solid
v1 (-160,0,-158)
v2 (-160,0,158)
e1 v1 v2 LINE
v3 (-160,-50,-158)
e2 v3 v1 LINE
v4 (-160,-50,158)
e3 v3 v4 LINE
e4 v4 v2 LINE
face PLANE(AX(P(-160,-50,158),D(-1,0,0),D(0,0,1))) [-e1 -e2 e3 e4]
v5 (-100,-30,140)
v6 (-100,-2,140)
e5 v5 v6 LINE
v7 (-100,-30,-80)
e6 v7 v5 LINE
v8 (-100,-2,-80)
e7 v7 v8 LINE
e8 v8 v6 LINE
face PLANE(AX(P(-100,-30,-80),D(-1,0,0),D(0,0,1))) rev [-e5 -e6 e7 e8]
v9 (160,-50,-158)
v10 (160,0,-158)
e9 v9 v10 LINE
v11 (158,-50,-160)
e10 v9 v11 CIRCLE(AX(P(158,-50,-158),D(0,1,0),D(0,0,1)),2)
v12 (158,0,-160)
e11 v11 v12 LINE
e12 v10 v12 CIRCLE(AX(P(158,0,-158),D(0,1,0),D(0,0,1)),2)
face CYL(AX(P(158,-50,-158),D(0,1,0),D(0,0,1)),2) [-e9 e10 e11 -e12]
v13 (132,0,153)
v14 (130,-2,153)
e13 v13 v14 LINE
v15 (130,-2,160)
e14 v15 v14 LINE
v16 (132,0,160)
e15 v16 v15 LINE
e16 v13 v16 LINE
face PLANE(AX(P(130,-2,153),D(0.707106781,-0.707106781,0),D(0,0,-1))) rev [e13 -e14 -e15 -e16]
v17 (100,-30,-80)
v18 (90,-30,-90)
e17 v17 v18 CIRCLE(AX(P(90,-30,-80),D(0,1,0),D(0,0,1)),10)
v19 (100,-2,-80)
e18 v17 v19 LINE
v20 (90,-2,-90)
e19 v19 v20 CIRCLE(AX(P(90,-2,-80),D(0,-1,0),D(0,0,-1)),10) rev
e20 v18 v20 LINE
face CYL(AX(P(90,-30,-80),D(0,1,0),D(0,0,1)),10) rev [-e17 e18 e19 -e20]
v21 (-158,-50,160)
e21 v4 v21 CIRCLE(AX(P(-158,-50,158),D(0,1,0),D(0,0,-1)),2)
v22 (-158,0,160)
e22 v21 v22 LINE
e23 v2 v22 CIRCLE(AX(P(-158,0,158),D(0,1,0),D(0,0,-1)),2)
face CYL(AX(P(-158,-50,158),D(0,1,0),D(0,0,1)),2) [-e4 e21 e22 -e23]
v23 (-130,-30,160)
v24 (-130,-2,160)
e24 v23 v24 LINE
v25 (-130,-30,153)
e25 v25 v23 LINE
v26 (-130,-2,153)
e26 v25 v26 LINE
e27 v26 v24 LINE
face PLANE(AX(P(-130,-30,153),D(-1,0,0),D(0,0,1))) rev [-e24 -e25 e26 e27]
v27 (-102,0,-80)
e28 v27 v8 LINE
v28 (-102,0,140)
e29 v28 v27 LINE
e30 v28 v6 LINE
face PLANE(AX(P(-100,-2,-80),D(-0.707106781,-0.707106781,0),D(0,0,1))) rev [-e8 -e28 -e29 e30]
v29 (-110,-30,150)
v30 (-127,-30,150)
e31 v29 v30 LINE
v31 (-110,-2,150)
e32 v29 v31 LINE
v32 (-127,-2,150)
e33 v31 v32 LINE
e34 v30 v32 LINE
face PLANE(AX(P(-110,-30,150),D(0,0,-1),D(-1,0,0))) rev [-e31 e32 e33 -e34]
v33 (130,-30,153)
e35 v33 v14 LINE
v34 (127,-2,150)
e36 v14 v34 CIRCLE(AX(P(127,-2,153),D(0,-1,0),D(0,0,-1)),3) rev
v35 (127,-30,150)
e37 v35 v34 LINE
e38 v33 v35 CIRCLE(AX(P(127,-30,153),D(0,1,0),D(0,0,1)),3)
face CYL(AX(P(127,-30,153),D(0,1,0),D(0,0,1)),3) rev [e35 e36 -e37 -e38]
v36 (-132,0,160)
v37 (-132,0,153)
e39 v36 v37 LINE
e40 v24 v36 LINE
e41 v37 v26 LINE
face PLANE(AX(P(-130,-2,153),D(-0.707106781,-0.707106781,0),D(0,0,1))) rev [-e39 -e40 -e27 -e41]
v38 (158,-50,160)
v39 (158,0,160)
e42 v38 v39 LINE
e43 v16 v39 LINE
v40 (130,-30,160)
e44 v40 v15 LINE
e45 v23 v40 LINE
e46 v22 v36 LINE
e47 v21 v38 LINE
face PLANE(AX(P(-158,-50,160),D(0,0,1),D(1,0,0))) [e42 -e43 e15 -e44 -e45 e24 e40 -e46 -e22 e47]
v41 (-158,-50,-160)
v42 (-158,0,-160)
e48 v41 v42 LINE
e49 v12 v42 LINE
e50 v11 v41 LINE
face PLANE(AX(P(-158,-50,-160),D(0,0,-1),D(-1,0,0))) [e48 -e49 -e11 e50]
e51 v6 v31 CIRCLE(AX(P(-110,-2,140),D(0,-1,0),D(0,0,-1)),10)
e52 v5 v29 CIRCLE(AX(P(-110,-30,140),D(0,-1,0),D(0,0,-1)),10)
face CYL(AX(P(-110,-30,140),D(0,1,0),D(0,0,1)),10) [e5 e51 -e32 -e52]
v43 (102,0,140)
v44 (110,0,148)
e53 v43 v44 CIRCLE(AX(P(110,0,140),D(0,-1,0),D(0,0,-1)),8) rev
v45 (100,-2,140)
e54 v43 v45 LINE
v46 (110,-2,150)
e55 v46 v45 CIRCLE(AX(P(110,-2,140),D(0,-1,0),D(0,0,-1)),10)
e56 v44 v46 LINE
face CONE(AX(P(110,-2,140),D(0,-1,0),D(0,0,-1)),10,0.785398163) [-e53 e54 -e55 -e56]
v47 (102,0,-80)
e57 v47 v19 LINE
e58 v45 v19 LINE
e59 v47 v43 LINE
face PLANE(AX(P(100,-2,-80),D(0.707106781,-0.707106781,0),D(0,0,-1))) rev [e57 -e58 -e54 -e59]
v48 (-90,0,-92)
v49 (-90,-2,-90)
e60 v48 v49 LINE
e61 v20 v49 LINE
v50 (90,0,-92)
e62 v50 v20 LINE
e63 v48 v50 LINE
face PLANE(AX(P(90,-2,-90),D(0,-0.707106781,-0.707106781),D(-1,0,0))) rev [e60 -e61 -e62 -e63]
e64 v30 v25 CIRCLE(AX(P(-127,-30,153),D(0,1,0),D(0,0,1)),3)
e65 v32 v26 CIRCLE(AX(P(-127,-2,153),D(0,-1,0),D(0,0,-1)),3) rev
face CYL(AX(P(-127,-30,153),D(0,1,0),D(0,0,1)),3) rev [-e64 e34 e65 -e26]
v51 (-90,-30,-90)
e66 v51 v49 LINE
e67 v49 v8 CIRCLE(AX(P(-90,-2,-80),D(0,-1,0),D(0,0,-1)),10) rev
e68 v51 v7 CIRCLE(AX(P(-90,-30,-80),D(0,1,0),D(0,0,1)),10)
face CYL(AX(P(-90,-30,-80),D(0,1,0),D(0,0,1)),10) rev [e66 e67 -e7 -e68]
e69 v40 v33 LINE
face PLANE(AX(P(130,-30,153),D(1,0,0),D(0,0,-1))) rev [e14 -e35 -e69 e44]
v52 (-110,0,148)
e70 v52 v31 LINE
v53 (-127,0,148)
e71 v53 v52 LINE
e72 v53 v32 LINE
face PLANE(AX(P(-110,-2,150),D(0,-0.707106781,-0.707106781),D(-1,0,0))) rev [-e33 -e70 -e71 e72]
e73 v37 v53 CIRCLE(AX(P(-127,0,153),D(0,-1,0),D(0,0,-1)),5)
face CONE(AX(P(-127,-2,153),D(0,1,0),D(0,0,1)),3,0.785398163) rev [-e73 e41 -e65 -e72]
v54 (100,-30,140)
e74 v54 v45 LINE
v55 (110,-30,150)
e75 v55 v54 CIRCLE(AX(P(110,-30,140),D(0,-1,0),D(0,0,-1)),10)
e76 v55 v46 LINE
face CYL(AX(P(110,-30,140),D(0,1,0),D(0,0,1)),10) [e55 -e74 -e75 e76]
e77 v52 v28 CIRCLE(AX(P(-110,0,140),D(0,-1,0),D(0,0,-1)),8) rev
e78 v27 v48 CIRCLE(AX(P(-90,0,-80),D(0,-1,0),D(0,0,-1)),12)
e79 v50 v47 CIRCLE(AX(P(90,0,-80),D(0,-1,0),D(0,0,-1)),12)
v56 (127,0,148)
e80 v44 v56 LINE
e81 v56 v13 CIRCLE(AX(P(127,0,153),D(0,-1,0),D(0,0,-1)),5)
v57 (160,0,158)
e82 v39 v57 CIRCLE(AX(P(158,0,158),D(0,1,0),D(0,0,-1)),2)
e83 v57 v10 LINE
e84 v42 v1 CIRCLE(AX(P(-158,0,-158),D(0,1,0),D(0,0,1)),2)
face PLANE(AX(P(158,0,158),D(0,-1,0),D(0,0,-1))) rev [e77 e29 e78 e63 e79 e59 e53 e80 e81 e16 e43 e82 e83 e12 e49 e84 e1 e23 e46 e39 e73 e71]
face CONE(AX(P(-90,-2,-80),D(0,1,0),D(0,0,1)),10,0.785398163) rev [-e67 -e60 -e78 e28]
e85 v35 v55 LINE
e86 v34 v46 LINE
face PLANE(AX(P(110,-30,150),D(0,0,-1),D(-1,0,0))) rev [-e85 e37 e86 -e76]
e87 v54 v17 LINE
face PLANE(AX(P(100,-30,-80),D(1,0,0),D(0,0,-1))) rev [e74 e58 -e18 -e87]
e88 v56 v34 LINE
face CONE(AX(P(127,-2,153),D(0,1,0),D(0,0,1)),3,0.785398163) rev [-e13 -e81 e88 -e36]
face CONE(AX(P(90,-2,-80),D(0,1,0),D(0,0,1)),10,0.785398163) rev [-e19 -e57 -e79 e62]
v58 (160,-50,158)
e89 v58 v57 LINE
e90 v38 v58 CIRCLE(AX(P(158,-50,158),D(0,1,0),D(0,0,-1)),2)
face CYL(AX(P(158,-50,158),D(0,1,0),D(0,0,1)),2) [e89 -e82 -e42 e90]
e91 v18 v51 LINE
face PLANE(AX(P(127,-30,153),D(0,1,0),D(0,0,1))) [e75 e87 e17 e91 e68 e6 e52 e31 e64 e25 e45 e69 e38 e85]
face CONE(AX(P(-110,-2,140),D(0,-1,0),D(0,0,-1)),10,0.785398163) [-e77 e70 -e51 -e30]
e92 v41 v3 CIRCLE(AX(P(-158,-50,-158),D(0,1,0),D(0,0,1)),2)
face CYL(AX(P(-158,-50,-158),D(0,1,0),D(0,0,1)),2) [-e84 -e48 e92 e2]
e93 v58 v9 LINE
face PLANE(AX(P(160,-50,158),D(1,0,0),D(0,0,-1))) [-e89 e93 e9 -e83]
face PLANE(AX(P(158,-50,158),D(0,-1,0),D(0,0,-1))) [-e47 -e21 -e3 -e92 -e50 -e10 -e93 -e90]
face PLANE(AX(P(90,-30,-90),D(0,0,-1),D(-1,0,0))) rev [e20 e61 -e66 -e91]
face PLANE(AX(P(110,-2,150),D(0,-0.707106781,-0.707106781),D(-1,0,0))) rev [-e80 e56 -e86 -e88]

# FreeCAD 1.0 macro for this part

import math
import FreeCAD as App
import Part
import Sketcher


def edges_at(feature, points):
    """Names of the edges that pass closest to the given points."""
    edges = feature.Shape.Edges
    near = lambda p: min(range(len(edges)), key=lambda i: edges[i].distToShape(Part.Vertex(*p))[0])
    return sorted({f"Edge{near(p) + 1}" for p in points})

doc = App.newDocument("Part")
body = doc.addObject("PartDesign::Body", "Body")

sketch1 = body.newObject("Sketcher::SketchObject", "Sketch")
sketch1.AttachmentSupport = (doc.getObject("XZ_Plane"), [""])
sketch1.MapMode = "FlatFace"
sketch1.addGeometry(Part.LineSegment(App.Vector(-158, 160, 0), App.Vector(158, 160, 0)), False)
sketch1.addGeometry(Part.ArcOfCircle(Part.Circle(App.Vector(158, 158, 0), App.Vector(0, 0, 1), 2), math.radians(0), math.radians(90)), False)
sketch1.addGeometry(Part.LineSegment(App.Vector(160, 158, 0), App.Vector(160, -158, 0)), False)
sketch1.addGeometry(Part.ArcOfCircle(Part.Circle(App.Vector(158, -158, 0), App.Vector(0, 0, 1), 2), math.radians(-90), math.radians(0)), False)
sketch1.addGeometry(Part.LineSegment(App.Vector(158, -160, 0), App.Vector(-158, -160, 0)), False)
sketch1.addGeometry(Part.ArcOfCircle(Part.Circle(App.Vector(-158, -158, 0), App.Vector(0, 0, 1), 2), math.radians(-180), math.radians(-90)), False)
sketch1.addGeometry(Part.LineSegment(App.Vector(-160, -158, 0), App.Vector(-160, 158, 0)), False)
sketch1.addGeometry(Part.ArcOfCircle(Part.Circle(App.Vector(-158, 158, 0), App.Vector(0, 0, 1), 2), math.radians(90), math.radians(180)), False)
sketch1.addConstraint(Sketcher.Constraint("Tangent", 0, 2, 1, 2))
sketch1.addConstraint(Sketcher.Constraint("Tangent", 1, 1, 2, 1))
sketch1.addConstraint(Sketcher.Constraint("Tangent", 2, 2, 3, 2))
sketch1.addConstraint(Sketcher.Constraint("Tangent", 3, 1, 4, 1))
sketch1.addConstraint(Sketcher.Constraint("Tangent", 4, 2, 5, 2))
sketch1.addConstraint(Sketcher.Constraint("Tangent", 5, 1, 6, 1))
sketch1.addConstraint(Sketcher.Constraint("Tangent", 6, 2, 7, 2))
sketch1.addConstraint(Sketcher.Constraint("Tangent", 7, 1, 0, 1))
sketch1.addConstraint(Sketcher.Constraint("Horizontal", 0))
sketch1.addConstraint(Sketcher.Constraint("Vertical", 2))
sketch1.addConstraint(Sketcher.Constraint("Horizontal", 4))
sketch1.addConstraint(Sketcher.Constraint("Vertical", 6))
sketch1.addConstraint(Sketcher.Constraint("Equal", 1, 3))
sketch1.addConstraint(Sketcher.Constraint("Equal", 3, 5))
sketch1.addConstraint(Sketcher.Constraint("Equal", 5, 7))
sketch1.addConstraint(Sketcher.Constraint("Symmetric", 1, 3, 5, 3, -1, 1))
sketch1.addConstraint(Sketcher.Constraint("Equal", 4, 2))
sketch1.addConstraint(Sketcher.Constraint("Radius", 1, 2.0))
sketch1.addConstraint(Sketcher.Constraint("DistanceX", 0, 1, 0, 2, 316.0))
pad1 = body.newObject("PartDesign::Pad", "Pad")
pad1.Profile = sketch1
pad1.Length = 50

sketch2 = body.newObject("Sketcher::SketchObject", "Sketch001")
sketch2.AttachmentSupport = (doc.getObject("XZ_Plane"), [""])
sketch2.MapMode = "FlatFace"
sketch2.addGeometry(Part.LineSegment(App.Vector(130, 160, 0), App.Vector(130, 153, 0)), False)
sketch2.addGeometry(Part.ArcOfCircle(Part.Circle(App.Vector(127, 153, 0), App.Vector(0, 0, 1), 3), math.radians(-90), math.radians(0)), False)
sketch2.addGeometry(Part.LineSegment(App.Vector(127, 150, 0), App.Vector(110, 150, 0)), False)
sketch2.addGeometry(Part.ArcOfCircle(Part.Circle(App.Vector(110, 140, 0), App.Vector(0, 0, 1), 10), math.radians(90), math.radians(180)), False)
sketch2.addGeometry(Part.LineSegment(App.Vector(100, 140, 0), App.Vector(100, -80, 0)), False)
sketch2.addGeometry(Part.ArcOfCircle(Part.Circle(App.Vector(90, -80, 0), App.Vector(0, 0, 1), 10), math.radians(-90), math.radians(0)), False)
sketch2.addGeometry(Part.LineSegment(App.Vector(90, -90, 0), App.Vector(-90, -90, 0)), False)
sketch2.addGeometry(Part.ArcOfCircle(Part.Circle(App.Vector(-90, -80, 0), App.Vector(0, 0, 1), 10), math.radians(180), math.radians(270)), False)
sketch2.addGeometry(Part.LineSegment(App.Vector(-100, -80, 0), App.Vector(-100, 140, 0)), False)
sketch2.addGeometry(Part.ArcOfCircle(Part.Circle(App.Vector(-110, 140, 0), App.Vector(0, 0, 1), 10), math.radians(0), math.radians(90)), False)
sketch2.addGeometry(Part.LineSegment(App.Vector(-110, 150, 0), App.Vector(-127, 150, 0)), False)
sketch2.addGeometry(Part.ArcOfCircle(Part.Circle(App.Vector(-127, 153, 0), App.Vector(0, 0, 1), 3), math.radians(180), math.radians(270)), False)
sketch2.addGeometry(Part.LineSegment(App.Vector(-130, 153, 0), App.Vector(-130, 160, 0)), False)
sketch2.addGeometry(Part.LineSegment(App.Vector(-130, 160, 0), App.Vector(130, 160, 0)), False)
sketch2.addConstraint(Sketcher.Constraint("Tangent", 0, 2, 1, 2))
sketch2.addConstraint(Sketcher.Constraint("Tangent", 1, 1, 2, 1))
sketch2.addConstraint(Sketcher.Constraint("Tangent", 2, 2, 3, 1))
sketch2.addConstraint(Sketcher.Constraint("Tangent", 3, 2, 4, 1))
sketch2.addConstraint(Sketcher.Constraint("Tangent", 4, 2, 5, 2))
sketch2.addConstraint(Sketcher.Constraint("Tangent", 5, 1, 6, 1))
sketch2.addConstraint(Sketcher.Constraint("Tangent", 6, 2, 7, 2))
sketch2.addConstraint(Sketcher.Constraint("Tangent", 7, 1, 8, 1))
sketch2.addConstraint(Sketcher.Constraint("Tangent", 8, 2, 9, 1))
sketch2.addConstraint(Sketcher.Constraint("Tangent", 9, 2, 10, 1))
sketch2.addConstraint(Sketcher.Constraint("Tangent", 10, 2, 11, 2))
sketch2.addConstraint(Sketcher.Constraint("Tangent", 11, 1, 12, 1))
sketch2.addConstraint(Sketcher.Constraint("Coincident", 12, 2, 13, 1))
sketch2.addConstraint(Sketcher.Constraint("Coincident", 13, 2, 0, 1))
sketch2.addConstraint(Sketcher.Constraint("Vertical", 0))
sketch2.addConstraint(Sketcher.Constraint("Horizontal", 2))
sketch2.addConstraint(Sketcher.Constraint("Vertical", 4))
sketch2.addConstraint(Sketcher.Constraint("Horizontal", 6))
sketch2.addConstraint(Sketcher.Constraint("Vertical", 8))
sketch2.addConstraint(Sketcher.Constraint("Horizontal", 10))
sketch2.addConstraint(Sketcher.Constraint("Vertical", 12))
sketch2.addConstraint(Sketcher.Constraint("Horizontal", 13))
sketch2.addConstraint(Sketcher.Constraint("Equal", 3, 5))
sketch2.addConstraint(Sketcher.Constraint("Equal", 5, 7))
sketch2.addConstraint(Sketcher.Constraint("Equal", 7, 9))
sketch2.addConstraint(Sketcher.Constraint("Equal", 1, 11))
sketch2.addConstraint(Sketcher.Constraint("Symmetric", 3, 3, 9, 3, -2))
sketch2.addConstraint(Sketcher.Constraint("Equal", 2, 10))
sketch2.addConstraint(Sketcher.Constraint("Radius", 1, 3.0))
sketch2.addConstraint(Sketcher.Constraint("Radius", 3, 10.0))
sketch2.addConstraint(Sketcher.Constraint("DistanceX", 2, 2, 2, 1, 17.0))
sketch2.addConstraint(Sketcher.Constraint("DistanceX", 6, 2, 6, 1, 180.0))
sketch2.addConstraint(Sketcher.Constraint("DistanceY", 0, 2, 0, 1, 7.0))
sketch2.addConstraint(Sketcher.Constraint("DistanceY", 4, 2, 4, 1, 220.0))
sketch2.addConstraint(Sketcher.Constraint("DistanceY", -1, 1, 1, 3, 153.0))
pocket1 = body.newObject("PartDesign::Pocket", "Pocket")
pocket1.Profile = sketch2
pocket1.Length = 30
pocket1.Reversed = True
doc.recompute()

chamfer = body.newObject("PartDesign::Chamfer", "Chamfer")
chamfer.Base = (pocket1, edges_at(pocket1, [
    (130, 0, 156.5),
    (129.121, 0, 150.879),
    (118.5, 0, 150),
    (102.929, 0, 147.071),
    (100, 0, 30),
    (97.071, 0, -87.071),
    (0, 0, -90),
    (-97.071, 0, -87.071),
    (-100, 0, 30),
    (-102.929, 0, 147.071),
    (-118.5, 0, 150),
    (-129.121, 0, 150.879),
    (-130, 0, 156.5),
]))
chamfer.Size = 2

doc.recompute()
